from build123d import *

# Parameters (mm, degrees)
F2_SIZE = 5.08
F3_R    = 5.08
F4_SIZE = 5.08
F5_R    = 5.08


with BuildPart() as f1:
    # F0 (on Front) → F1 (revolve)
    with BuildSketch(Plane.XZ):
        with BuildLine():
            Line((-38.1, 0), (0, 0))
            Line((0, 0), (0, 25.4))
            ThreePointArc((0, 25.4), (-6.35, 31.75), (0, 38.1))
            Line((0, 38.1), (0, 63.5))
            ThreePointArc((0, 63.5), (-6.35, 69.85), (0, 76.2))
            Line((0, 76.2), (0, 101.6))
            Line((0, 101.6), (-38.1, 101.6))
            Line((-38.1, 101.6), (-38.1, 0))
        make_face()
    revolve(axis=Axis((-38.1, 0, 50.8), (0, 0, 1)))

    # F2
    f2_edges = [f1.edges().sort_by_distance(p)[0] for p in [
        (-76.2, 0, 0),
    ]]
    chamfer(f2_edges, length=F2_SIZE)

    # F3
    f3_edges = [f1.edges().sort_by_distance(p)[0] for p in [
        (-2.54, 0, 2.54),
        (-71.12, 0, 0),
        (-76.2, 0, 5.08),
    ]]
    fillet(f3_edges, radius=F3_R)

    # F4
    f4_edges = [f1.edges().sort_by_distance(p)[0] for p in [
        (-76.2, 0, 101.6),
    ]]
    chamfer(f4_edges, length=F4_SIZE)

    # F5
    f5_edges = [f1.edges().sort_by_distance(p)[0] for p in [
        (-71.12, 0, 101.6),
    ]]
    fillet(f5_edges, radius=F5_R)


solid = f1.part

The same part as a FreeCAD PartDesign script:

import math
import FreeCAD as App
import Part
import Sketcher
from FreeCAD import Vector
Q = App.Units.Quantity


def edges_at(feature, points):
    """Names of the edges that pass closest to the given points."""
    edges = feature.Shape.Edges
    near = lambda p: min(range(len(edges)), key=lambda i: edges[i].distToShape(Part.Vertex(*p))[0])
    return sorted({f"Edge{near(p) + 1}" for p in points})

doc = App.newDocument("Part")
body = doc.addObject("PartDesign::Body", "Body")

sketch1 = doc.addObject("Sketcher::SketchObject", "Sketch")
body.addObject(sketch1)
sketch1.AttachmentSupport = (doc.XZ_Plane, [""])
sketch1.MapMode = "FlatFace"
sketch1.addGeometry(Part.LineSegment(Vector(-38, 0, 0), Vector(0, 0, 0)), False)
sketch1.addGeometry(Part.LineSegment(Vector(0, 0, 0), Vector(0, 25, 0)), False)
sketch1.addGeometry(Part.ArcOfCircle(Part.Circle(Vector(0, 32, 0), Vector(0, 0, 1), 6), math.radians(90), math.radians(270)), False)
sketch1.addGeometry(Part.LineSegment(Vector(0, 38, 0), Vector(0, 64, 0)), False)
sketch1.addGeometry(Part.ArcOfCircle(Part.Circle(Vector(0, 70, 0), Vector(0, 0, 1), 6), math.radians(90), math.radians(270)), False)
sketch1.addGeometry(Part.LineSegment(Vector(0, 76, 0), Vector(0, 102, 0)), False)
sketch1.addGeometry(Part.LineSegment(Vector(0, 102, 0), Vector(-38, 102, 0)), False)
sketch1.addGeometry(Part.LineSegment(Vector(-38, 102, 0), Vector(-38, 0, 0)), False)
sketch1.addGeometry(Part.LineSegment(Vector(-38, 0, 0), Vector(-38, 102, 0)), True)
sketch1.addConstraint(Sketcher.Constraint("Coincident", 0, 2, 1, 1))
sketch1.addConstraint(Sketcher.Constraint("Coincident", 1, 2, 2, 2))
sketch1.addConstraint(Sketcher.Constraint("Coincident", 2, 1, 3, 1))
sketch1.addConstraint(Sketcher.Constraint("Coincident", 3, 2, 4, 2))
sketch1.addConstraint(Sketcher.Constraint("Coincident", 4, 1, 5, 1))
sketch1.addConstraint(Sketcher.Constraint("Coincident", 5, 2, 6, 1))
sketch1.addConstraint(Sketcher.Constraint("Coincident", 6, 2, 7, 1))
sketch1.addConstraint(Sketcher.Constraint("Coincident", 7, 2, 0, 1))
sketch1.addConstraint(Sketcher.Constraint("Horizontal", 0))
sketch1.addConstraint(Sketcher.Constraint("Vertical", 1))
sketch1.addConstraint(Sketcher.Constraint("Vertical", 3))
sketch1.addConstraint(Sketcher.Constraint("Vertical", 5))
sketch1.addConstraint(Sketcher.Constraint("Horizontal", 6))
sketch1.addConstraint(Sketcher.Constraint("Vertical", 7))
sketch1.addConstraint(Sketcher.Constraint("Vertical", 8))
sketch1.addConstraint(Sketcher.Constraint("Coincident", 0, 2, -1, 1))
sketch1.addConstraint(Sketcher.Constraint("Coincident", 8, 1, 7, 2))
sketch1.addConstraint(Sketcher.Constraint("Equal", 2, 4))
sketch1.addConstraint(Sketcher.Constraint("PointOnObject", 2, 3, -2))
sketch1.addConstraint(Sketcher.Constraint("PointOnObject", 4, 3, -2))
sketch1.addConstraint(Sketcher.Constraint("PointOnObject", 2, 1, -2))
sketch1.addConstraint(Sketcher.Constraint("PointOnObject", 4, 1, -2))
sketch1.addConstraint(Sketcher.Constraint("Horizontal", 5, 2, 8, 2))
sketch1.addConstraint(Sketcher.Constraint("Equal", 1, 3))
sketch1.addConstraint(Sketcher.Constraint("Equal", 3, 5))
sketch1.addConstraint(Sketcher.Constraint("DistanceY", 1, 1, 1, 2, Q("1 in")))
sketch1.addConstraint(Sketcher.Constraint("DistanceY", 7, 2, 7, 1, Q("4 in")))
sketch1.addConstraint(Sketcher.Constraint("DistanceX", 0, 1, 0, 2, Q("1.5 in")))
revolution = doc.addObject("PartDesign::Revolution", "Revolution")
body.addObject(revolution)
revolution.Profile = sketch1
revolution.ReferenceAxis = (sketch1, ["Axis0"])
revolution.Angle = 360
doc.recompute()

chamfer = doc.addObject("PartDesign::Chamfer", "Chamfer")
body.addObject(chamfer)
chamfer.Base = (revolution, edges_at(revolution, [(-76.2, 0, 0)]))
chamfer.Size = Q("0.2 in")
doc.recompute()

fillet = doc.addObject("PartDesign::Fillet", "Fillet")
body.addObject(fillet)
fillet.Base = (chamfer, edges_at(chamfer, [(-2.54, 0, 2.54), (-71.12, 0, 0), (-76.2, 0, 5.08)]))
fillet.Radius = Q("0.2 in")
doc.recompute()

chamfer2 = doc.addObject("PartDesign::Chamfer", "Chamfer001")
body.addObject(chamfer2)
chamfer2.Base = (fillet, edges_at(fillet, [(-76.2, 0, 101.6)]))
chamfer2.Size = Q("0.2 in")
doc.recompute()

fillet2 = doc.addObject("PartDesign::Fillet", "Fillet001")
body.addObject(fillet2)
fillet2.Base = (chamfer2, edges_at(chamfer2, [(-71.12, 0, 101.6)]))
fillet2.Radius = Q("0.2 in")

doc.recompute()
